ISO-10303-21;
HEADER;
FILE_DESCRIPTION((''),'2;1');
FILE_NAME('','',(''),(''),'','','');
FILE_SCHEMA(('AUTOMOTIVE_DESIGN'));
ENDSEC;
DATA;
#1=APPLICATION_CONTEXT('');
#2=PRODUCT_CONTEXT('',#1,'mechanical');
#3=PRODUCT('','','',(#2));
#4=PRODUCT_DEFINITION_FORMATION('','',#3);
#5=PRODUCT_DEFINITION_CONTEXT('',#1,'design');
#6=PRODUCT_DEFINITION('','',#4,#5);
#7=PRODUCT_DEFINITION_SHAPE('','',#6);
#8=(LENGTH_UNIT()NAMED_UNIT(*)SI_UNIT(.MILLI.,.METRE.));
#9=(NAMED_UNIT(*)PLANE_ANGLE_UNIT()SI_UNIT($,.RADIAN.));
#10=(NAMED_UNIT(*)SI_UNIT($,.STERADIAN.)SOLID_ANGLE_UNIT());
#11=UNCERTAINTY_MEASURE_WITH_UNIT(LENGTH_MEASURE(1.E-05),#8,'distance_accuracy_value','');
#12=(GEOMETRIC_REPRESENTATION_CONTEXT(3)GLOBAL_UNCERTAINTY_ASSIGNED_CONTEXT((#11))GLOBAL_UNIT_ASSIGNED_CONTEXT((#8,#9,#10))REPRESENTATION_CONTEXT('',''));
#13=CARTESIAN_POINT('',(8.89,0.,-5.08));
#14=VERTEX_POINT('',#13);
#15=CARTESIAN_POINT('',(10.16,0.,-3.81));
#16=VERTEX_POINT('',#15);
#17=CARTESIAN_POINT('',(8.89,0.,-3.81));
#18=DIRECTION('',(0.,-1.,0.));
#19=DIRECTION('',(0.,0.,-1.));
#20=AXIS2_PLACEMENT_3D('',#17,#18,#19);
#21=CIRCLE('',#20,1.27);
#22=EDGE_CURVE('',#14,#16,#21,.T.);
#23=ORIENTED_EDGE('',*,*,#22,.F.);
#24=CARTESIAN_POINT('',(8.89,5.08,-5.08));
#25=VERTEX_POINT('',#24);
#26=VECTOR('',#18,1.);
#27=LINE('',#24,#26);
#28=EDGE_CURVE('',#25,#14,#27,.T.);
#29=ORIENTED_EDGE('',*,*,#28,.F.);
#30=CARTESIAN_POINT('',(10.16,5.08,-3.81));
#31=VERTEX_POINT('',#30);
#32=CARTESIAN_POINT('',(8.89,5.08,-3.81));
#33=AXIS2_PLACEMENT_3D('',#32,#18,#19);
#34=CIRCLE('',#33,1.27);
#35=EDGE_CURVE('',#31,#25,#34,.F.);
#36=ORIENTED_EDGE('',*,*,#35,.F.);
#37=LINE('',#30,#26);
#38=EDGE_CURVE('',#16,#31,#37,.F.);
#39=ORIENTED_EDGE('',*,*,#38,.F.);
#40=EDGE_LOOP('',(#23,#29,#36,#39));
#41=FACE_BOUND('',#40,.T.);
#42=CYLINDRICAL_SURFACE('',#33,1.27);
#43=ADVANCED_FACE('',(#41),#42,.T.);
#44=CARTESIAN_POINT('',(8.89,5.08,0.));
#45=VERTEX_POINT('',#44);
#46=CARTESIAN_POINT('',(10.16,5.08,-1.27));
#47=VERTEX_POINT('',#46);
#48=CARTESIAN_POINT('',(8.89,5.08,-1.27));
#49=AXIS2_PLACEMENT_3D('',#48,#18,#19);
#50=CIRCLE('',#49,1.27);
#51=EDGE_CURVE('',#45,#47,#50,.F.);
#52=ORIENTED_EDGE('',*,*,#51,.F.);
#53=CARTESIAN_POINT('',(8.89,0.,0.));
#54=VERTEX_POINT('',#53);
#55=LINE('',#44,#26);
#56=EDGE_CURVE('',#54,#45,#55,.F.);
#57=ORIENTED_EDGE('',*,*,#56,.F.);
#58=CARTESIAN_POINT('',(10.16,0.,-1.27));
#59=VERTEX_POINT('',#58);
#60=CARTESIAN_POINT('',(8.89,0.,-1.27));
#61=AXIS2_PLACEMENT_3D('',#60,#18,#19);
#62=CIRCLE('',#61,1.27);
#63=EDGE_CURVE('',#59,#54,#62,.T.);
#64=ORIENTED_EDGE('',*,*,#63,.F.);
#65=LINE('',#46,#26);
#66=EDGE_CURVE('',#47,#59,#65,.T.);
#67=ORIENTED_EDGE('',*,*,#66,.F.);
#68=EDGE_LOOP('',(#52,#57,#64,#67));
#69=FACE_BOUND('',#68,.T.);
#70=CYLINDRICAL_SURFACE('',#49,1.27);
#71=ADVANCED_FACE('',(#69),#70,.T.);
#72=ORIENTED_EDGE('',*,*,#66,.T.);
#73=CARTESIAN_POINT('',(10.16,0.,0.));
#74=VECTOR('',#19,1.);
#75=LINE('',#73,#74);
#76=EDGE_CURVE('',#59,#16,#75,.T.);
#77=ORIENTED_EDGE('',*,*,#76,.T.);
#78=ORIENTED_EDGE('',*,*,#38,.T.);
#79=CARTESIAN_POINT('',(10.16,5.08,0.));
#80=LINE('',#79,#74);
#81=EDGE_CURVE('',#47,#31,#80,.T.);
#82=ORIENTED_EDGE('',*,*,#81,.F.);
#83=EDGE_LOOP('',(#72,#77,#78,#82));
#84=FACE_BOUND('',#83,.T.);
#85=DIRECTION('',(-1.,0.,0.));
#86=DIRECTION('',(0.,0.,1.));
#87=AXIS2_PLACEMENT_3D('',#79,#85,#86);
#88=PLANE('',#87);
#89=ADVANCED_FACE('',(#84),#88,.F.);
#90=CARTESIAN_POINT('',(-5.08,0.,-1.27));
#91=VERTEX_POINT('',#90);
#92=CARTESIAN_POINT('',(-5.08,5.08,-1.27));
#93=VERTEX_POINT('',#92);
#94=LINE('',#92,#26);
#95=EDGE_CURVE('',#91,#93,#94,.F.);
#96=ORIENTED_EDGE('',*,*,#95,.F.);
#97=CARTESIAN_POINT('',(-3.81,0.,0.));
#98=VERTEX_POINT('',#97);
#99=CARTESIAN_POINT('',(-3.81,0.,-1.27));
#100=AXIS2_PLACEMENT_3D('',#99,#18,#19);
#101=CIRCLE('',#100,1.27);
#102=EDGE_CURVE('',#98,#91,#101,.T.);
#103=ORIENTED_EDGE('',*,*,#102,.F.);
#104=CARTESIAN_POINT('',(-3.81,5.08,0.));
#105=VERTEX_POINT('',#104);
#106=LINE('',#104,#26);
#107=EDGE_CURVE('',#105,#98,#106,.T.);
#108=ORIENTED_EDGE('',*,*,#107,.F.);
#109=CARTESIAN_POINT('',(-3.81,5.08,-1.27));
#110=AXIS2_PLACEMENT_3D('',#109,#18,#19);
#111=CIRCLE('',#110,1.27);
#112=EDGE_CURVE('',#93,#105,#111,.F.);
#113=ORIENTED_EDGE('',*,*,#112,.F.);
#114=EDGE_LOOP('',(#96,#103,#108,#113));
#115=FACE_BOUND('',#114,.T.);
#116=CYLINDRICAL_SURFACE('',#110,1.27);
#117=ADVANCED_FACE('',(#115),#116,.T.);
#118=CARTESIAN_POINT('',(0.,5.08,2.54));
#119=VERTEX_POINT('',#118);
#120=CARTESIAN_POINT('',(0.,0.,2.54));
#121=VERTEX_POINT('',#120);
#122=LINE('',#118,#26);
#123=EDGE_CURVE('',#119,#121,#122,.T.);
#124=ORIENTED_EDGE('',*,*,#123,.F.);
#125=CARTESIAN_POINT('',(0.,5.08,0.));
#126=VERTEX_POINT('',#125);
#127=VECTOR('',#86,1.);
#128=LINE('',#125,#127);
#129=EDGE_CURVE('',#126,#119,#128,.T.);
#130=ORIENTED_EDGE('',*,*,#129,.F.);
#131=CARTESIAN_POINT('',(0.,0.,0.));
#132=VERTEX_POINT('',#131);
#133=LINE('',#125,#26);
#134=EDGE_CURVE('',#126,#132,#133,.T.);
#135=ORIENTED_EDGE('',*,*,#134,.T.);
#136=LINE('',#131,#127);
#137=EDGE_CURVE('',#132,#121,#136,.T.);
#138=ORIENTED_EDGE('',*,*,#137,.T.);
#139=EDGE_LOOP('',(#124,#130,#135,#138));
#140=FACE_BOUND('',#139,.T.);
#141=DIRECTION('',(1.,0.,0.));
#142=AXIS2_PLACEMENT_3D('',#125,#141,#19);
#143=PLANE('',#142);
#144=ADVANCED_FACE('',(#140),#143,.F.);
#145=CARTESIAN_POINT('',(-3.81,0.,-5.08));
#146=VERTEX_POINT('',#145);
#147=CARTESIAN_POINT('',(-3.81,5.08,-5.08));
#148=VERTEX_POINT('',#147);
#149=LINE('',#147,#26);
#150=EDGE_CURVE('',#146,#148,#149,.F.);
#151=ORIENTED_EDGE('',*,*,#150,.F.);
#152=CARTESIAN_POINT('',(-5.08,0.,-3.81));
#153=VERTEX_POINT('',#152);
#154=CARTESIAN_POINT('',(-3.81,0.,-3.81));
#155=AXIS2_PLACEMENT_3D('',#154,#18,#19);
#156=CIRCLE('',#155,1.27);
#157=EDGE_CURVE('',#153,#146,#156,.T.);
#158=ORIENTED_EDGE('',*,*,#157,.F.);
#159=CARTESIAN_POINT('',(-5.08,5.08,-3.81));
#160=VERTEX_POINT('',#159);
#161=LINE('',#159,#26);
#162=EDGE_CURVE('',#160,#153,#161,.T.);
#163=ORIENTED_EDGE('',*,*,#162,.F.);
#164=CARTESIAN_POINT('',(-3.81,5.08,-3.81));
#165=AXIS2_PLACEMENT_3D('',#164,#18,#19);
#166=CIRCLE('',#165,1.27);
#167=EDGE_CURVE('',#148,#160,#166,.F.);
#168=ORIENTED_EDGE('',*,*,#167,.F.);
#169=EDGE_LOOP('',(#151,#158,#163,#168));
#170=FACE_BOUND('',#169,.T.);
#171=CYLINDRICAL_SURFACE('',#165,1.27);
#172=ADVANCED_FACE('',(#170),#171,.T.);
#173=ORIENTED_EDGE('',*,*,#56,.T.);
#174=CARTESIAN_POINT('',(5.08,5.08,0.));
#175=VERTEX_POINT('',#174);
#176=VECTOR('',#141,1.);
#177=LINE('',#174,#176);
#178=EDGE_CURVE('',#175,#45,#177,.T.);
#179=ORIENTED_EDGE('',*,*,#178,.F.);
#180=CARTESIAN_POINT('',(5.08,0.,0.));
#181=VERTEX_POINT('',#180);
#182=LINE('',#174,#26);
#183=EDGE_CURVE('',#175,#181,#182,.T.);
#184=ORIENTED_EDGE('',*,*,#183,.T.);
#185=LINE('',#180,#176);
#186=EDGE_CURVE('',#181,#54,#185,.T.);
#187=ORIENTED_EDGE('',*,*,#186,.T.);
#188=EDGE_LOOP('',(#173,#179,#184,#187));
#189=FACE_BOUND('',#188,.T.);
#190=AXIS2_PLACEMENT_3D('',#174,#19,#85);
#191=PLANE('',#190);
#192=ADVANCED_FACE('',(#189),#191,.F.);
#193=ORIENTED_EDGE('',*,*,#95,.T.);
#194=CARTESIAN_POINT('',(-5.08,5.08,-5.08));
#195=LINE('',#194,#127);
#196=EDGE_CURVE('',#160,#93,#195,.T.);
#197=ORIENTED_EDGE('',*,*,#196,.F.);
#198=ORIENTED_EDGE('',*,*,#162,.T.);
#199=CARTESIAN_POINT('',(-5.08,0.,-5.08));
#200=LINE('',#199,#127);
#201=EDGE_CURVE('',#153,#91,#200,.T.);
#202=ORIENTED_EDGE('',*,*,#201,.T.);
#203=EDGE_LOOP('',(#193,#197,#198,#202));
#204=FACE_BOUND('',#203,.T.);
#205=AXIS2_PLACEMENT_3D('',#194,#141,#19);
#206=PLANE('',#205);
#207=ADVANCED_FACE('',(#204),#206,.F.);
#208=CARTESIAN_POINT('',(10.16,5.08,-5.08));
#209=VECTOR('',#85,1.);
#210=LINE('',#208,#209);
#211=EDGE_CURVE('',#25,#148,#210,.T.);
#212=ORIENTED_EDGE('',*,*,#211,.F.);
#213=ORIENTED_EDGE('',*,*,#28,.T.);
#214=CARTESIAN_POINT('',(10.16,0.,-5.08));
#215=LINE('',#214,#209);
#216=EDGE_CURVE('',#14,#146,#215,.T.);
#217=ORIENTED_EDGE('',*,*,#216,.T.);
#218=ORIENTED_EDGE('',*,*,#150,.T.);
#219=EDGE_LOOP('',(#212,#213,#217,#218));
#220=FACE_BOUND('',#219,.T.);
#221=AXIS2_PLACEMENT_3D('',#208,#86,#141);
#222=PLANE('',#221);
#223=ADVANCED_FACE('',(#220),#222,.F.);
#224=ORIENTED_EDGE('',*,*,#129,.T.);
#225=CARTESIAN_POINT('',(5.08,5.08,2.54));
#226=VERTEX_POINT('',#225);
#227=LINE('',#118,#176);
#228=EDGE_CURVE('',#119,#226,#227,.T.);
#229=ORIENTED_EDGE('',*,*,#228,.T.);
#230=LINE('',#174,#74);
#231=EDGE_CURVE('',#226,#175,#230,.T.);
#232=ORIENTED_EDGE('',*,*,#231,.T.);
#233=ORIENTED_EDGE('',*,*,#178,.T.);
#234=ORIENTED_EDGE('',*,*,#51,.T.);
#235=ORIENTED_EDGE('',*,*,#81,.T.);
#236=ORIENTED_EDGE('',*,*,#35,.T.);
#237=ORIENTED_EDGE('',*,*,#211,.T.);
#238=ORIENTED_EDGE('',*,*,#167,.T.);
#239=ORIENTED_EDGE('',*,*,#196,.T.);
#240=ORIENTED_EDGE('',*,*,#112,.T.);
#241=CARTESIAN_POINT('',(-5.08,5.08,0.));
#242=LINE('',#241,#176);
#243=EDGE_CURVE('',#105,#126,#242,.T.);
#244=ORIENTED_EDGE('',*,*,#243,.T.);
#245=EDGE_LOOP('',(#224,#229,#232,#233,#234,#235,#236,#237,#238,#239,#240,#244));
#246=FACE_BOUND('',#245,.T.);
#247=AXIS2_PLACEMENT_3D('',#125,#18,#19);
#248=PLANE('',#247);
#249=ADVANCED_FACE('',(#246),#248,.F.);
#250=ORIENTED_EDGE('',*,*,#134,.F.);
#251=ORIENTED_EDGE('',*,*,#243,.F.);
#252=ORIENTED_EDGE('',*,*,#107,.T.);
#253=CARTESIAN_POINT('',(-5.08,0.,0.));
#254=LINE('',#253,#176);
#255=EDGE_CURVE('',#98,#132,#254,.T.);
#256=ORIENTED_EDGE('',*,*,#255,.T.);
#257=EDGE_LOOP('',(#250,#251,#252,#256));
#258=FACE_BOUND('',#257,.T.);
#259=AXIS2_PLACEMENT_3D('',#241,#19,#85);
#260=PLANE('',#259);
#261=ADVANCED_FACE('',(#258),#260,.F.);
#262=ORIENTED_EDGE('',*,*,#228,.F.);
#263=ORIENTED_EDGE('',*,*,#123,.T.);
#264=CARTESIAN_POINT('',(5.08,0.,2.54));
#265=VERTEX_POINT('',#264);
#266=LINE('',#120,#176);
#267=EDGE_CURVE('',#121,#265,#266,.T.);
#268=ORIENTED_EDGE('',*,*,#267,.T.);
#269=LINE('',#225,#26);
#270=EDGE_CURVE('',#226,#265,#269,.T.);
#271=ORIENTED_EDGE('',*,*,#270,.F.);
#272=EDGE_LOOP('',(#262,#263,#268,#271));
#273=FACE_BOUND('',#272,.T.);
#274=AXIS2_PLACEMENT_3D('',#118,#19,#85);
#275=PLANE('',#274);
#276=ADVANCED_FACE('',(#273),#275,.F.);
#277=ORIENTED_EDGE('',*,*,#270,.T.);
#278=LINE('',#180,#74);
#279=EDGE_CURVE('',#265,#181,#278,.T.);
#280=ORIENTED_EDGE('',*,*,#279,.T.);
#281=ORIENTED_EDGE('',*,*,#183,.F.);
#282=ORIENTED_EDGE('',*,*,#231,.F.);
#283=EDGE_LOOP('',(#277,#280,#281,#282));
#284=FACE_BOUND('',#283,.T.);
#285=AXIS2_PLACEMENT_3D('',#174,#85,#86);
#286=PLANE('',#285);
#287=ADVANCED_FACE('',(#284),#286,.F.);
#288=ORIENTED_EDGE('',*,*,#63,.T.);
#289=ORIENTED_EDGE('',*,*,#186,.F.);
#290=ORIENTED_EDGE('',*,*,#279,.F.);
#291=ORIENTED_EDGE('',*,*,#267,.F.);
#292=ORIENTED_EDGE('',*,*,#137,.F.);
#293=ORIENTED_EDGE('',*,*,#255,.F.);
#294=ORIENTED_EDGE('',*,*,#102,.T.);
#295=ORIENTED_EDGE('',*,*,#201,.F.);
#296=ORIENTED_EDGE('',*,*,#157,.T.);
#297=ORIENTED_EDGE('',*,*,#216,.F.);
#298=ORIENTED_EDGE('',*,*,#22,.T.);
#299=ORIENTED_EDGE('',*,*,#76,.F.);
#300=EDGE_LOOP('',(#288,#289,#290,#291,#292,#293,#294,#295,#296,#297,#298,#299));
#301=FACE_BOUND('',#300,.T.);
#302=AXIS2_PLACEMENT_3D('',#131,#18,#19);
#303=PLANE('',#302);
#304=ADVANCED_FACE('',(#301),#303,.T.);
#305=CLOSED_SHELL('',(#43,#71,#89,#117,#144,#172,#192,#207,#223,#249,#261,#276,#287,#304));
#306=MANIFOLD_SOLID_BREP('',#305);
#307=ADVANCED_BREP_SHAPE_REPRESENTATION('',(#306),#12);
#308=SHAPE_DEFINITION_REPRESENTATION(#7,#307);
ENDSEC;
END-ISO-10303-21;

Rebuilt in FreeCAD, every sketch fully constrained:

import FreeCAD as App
import Part
import Sketcher

V = App.Vector
Q = App.Units.Quantity


def edges_at(feature, points):
    """Names of the edges that pass closest to the given points."""
    edges = feature.Shape.Edges
    near = lambda p: min(range(len(edges)), key=lambda i: edges[i].distToShape(Part.Vertex(*p))[0])
    return sorted({f"Edge{near(p) + 1}" for p in points})

doc = App.newDocument("Part")
body = doc.addObject("PartDesign::Body", "Body")

# Sketch on XZ plane
sketch1 = doc.addObject("Sketcher::SketchObject", "Sketch")
body.addObject(sketch1)
sketch1.AttachmentSupport = (doc.XZ_Plane, [""])
sketch1.MapMode = "FlatFace"
sketch1.addGeometry([
    Part.LineSegment(V(5.1, 0, 0), V(10.2, 0, 0)),  # 0
    Part.LineSegment(V(10.2, 0, 0), V(10.2, -5.1, 0)),  # 1
    Part.LineSegment(V(10.2, -5.1, 0), V(-5.1, -5.1, 0)),  # 2
    Part.LineSegment(V(-5.1, -5.1, 0), V(-5.1, 0, 0)),  # 3
    Part.LineSegment(V(-5.1, 0, 0), V(0, 0, 0)),  # 4
    Part.LineSegment(V(0, 0, 0), V(0, 2.5, 0)),  # 5
    Part.LineSegment(V(0, 2.5, 0), V(5.1, 2.5, 0)),  # 6
    Part.LineSegment(V(5.1, 2.5, 0), V(5.1, 0, 0)),  # 7
], False)
sketch1.addConstraint([
    Sketcher.Constraint("Coincident", 0, 2, 1, 1),
    Sketcher.Constraint("Coincident", 1, 2, 2, 1),
    Sketcher.Constraint("Coincident", 2, 2, 3, 1),
    Sketcher.Constraint("Coincident", 3, 2, 4, 1),
    Sketcher.Constraint("Coincident", 4, 2, 5, 1),
    Sketcher.Constraint("Coincident", 5, 2, 6, 1),
    Sketcher.Constraint("Coincident", 6, 2, 7, 1),
    Sketcher.Constraint("Coincident", 7, 2, 0, 1),
    Sketcher.Constraint("Horizontal", 0),
    Sketcher.Constraint("Vertical", 1),
    Sketcher.Constraint("Horizontal", 2),
    Sketcher.Constraint("Vertical", 3),
    Sketcher.Constraint("Horizontal", 4),
    Sketcher.Constraint("Vertical", 5),
    Sketcher.Constraint("Horizontal", 6),
    Sketcher.Constraint("Vertical", 7),
    Sketcher.Constraint("Coincident", 4, 2, -1, 1),
    Sketcher.Constraint("Symmetric", 3, 2, 7, 2, -1, 1),
    Sketcher.Constraint("Equal", 0, 4),
    Sketcher.Constraint("Equal", 6, 1),
    Sketcher.Constraint("DistanceX", 0, 1, 0, 2, Q("0.2 in")),
    Sketcher.Constraint("DistanceY", 5, 1, 5, 2, Q("0.1 in")),
])
pad1 = doc.addObject("PartDesign::Pad", "Pad")
body.addObject(pad1)
pad1.Profile = sketch1
pad1.Length = Q("0.2 in")
pad1.Reversed = True
doc.recompute()

fillet = doc.addObject("PartDesign::Fillet", "Fillet")
body.addObject(fillet)
fillet.Base = (pad1, edges_at(pad1, [
    (-5.08, 2.54, 0),
    (-5.08, 2.54, -5.08),
    (10.16, 2.54, -5.08),
    (10.16, 2.54, 0),
]))
fillet.Radius = Q("0.05 in")

doc.recompute()
